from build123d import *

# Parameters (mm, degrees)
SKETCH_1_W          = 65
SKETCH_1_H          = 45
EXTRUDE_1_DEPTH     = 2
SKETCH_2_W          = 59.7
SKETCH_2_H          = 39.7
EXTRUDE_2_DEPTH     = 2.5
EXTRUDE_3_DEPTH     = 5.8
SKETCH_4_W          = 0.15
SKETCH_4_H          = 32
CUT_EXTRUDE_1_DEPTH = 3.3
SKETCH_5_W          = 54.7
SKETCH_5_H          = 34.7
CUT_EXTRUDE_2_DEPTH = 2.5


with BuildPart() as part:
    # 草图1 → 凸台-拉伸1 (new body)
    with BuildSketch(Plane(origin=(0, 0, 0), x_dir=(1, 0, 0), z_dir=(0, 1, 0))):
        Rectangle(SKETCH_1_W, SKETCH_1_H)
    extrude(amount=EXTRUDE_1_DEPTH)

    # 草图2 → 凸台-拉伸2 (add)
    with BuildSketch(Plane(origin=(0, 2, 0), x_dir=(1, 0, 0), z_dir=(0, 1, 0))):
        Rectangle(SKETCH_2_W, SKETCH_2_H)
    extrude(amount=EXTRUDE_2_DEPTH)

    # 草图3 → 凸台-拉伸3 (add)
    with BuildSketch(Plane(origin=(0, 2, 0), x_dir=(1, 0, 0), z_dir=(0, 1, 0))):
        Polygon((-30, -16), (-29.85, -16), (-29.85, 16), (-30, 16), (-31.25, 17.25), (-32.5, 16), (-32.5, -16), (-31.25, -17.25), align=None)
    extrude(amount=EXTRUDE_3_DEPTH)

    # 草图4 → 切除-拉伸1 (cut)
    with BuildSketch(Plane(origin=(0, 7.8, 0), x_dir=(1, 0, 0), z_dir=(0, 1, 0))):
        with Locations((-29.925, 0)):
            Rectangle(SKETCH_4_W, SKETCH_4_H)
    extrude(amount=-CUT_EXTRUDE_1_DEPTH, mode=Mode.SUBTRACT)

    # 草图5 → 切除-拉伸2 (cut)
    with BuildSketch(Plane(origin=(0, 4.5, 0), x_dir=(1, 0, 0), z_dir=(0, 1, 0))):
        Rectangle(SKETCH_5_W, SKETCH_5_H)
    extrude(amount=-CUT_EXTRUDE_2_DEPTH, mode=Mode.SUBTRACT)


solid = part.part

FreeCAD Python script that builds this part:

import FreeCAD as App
import Part
import Sketcher


def add_polygon(sketch, points):
    """Adds a closed chain of lines whose ends are joined by coincident constraints."""
    first, n = sketch.GeometryCount, len(points)
    for a, b in zip(points, points[1:] + points[:1]):
        sketch.addGeometry(Part.LineSegment(App.Vector(*a, 0), App.Vector(*b, 0)), False)
    for i in range(n):
        sketch.addConstraint(Sketcher.Constraint("Coincident", first + i, 2, first + (i + 1) % n, 1))

doc = App.newDocument("Part")
params = doc.addObject("Spreadsheet::Sheet", "Params")
for row, (alias, value) in enumerate([
    ("sketch1_width", "65 mm"),
    ("sketch1_height", "45 mm"),
    ("pad1_length", "2 mm"),
    ("sketch2_width", "59.7 mm"),
    ("sketch2_height", "39.7 mm"),
    ("pad2_length", "2.5 mm"),
    ("sketch3_height", "32 mm"),
    ("sketch3_width", "0.15 mm"),
    ("pad3_length", "5.8 mm"),
    ("sketch4_height", "32 mm"),
    ("sketch4_width", "0.15 mm"),
    ("pocket1_length", "3.3 mm"),
    ("sketch5_width", "54.7 mm"),
    ("sketch5_height", "34.7 mm"),
    ("pocket2_length", "2.5 mm"),
], start=1):
    params.set(f"A{row}", alias)
    params.set(f"B{row}", "=" + value)
    params.setAlias(f"B{row}", alias)

body = doc.addObject("PartDesign::Body", "Body")

# Sketch on XZ plane
sketch1 = body.newObject("Sketcher::SketchObject", "Sketch")
sketch1.AttachmentSupport = (doc.getObject("XZ_Plane"), [""])
sketch1.MapMode = "FlatFace"
add_polygon(sketch1, [(-32, -22), (-32, 22), (32, 22), (32, -22)])  # lines 0-3
sketch1.addConstraint([
    Sketcher.Constraint("Vertical", 0),
    Sketcher.Constraint("Horizontal", 1),
    Sketcher.Constraint("Vertical", 2),
    Sketcher.Constraint("Horizontal", 3),
    Sketcher.Constraint("Symmetric", 0, 2, 2, 2, -1, 1),
    Sketcher.Constraint("DistanceX", 1, 1, 1, 2, 65.0),
    Sketcher.Constraint("DistanceY", 0, 1, 0, 2, 45.0),
])
sketch1.setExpression("Constraints[9]", "Params.sketch1_width")
sketch1.setExpression("Constraints[10]", "Params.sketch1_height")
pad1 = body.newObject("PartDesign::Pad", "Pad")
pad1.Profile = sketch1
pad1.setExpression("Length", "Params.pad1_length")
pad1.Reversed = True

# Sketch on XZ plane
sketch2 = body.newObject("Sketcher::SketchObject", "Sketch001")
sketch2.AttachmentSupport = (doc.getObject("XZ_Plane"), [""])
sketch2.MapMode = "FlatFace"
sketch2.AttachmentOffset = App.Placement(App.Vector(0, 0, -2), App.Rotation())
add_polygon(sketch2, [(-30, -20), (-30, 20), (30, 20), (30, -20)])  # lines 0-3
sketch2.addConstraint([
    Sketcher.Constraint("Vertical", 0),
    Sketcher.Constraint("Horizontal", 1),
    Sketcher.Constraint("Vertical", 2),
    Sketcher.Constraint("Horizontal", 3),
    Sketcher.Constraint("Symmetric", 0, 2, 2, 2, -1, 1),
    Sketcher.Constraint("DistanceX", 1, 1, 1, 2, 59.7),
    Sketcher.Constraint("DistanceY", 0, 1, 0, 2, 39.7),
])
sketch2.setExpression("Constraints[9]", "Params.sketch2_width")
sketch2.setExpression("Constraints[10]", "Params.sketch2_height")
pad2 = body.newObject("PartDesign::Pad", "Pad001")
pad2.Profile = sketch2
pad2.setExpression("Length", "Params.pad2_length")
pad2.Reversed = True

# Sketch on XZ plane
sketch3 = body.newObject("Sketcher::SketchObject", "Sketch002")
sketch3.AttachmentSupport = (doc.getObject("XZ_Plane"), [""])
sketch3.MapMode = "FlatFace"
sketch3.AttachmentOffset = App.Placement(App.Vector(0, 0, -2), App.Rotation())
add_polygon(sketch3, [(-30, 16), (-29.85, 16), (-29.85, -16), (-30, -16), (-31.25, -17.25), (-32.5, -16), (-32.5, 16), (-31.25, 17.25)])  # lines 0-7
sketch3.addConstraint([
    Sketcher.Constraint("Horizontal", 0),
    Sketcher.Constraint("Vertical", 1),
    Sketcher.Constraint("Horizontal", 2),
    Sketcher.Constraint("Vertical", 5),
    Sketcher.Constraint("Symmetric", 3, 2, 6, 2, -1),
    Sketcher.Constraint("Symmetric", 2, 2, 7, 2, -1),
    Sketcher.Constraint("Perpendicular", 3, 4),
    Sketcher.Constraint("Perpendicular", 4, 6),
    Sketcher.Constraint("Perpendicular", 6, 7),
    Sketcher.Constraint("Horizontal", 2, 2, 4, 2),
    Sketcher.Constraint("DistanceY", 1, 2, 1, 1, 32.0),
    Sketcher.Constraint("DistanceX", 2, 2, -1, 1, 30.0),
    Sketcher.Constraint("DistanceX", 0, 1, 0, 2, 0.15),
    Sketcher.Constraint("DistanceX", 4, 2, -1, 1, 32.5),
])
sketch3.setExpression("Constraints[18]", "Params.sketch3_height")
sketch3.setExpression("Constraints[20]", "Params.sketch3_width")
pad3 = body.newObject("PartDesign::Pad", "Pad002")
pad3.Profile = sketch3
pad3.setExpression("Length", "Params.pad3_length")
pad3.Reversed = True

# Sketch on XZ plane
sketch4 = body.newObject("Sketcher::SketchObject", "Sketch003")
sketch4.AttachmentSupport = (doc.getObject("XZ_Plane"), [""])
sketch4.MapMode = "FlatFace"
sketch4.AttachmentOffset = App.Placement(App.Vector(0, 0, -7.8), App.Rotation())
add_polygon(sketch4, [(-30, -16), (-30, 16), (-29.85, 16), (-29.85, -16)])  # lines 0-3
sketch4.addConstraint([
    Sketcher.Constraint("Vertical", 0),
    Sketcher.Constraint("Horizontal", 1),
    Sketcher.Constraint("Vertical", 2),
    Sketcher.Constraint("Horizontal", 3),
    Sketcher.Constraint("DistanceY", 0, 1, 0, 2, 32.0),
    Sketcher.Constraint("DistanceX", 0, 2, -1, 1, 30.0),
    Sketcher.Constraint("DistanceY", -1, 1, 0, 2, 16.0),
    Sketcher.Constraint("DistanceX", 1, 1, 1, 2, 0.15),
])
sketch4.setExpression("Constraints[8]", "Params.sketch4_height")
sketch4.setExpression("Constraints[11]", "Params.sketch4_width")
pocket1 = body.newObject("PartDesign::Pocket", "Pocket")
pocket1.Profile = sketch4
pocket1.setExpression("Length", "Params.pocket1_length")
pocket1.Reversed = True

# Sketch on XZ plane
sketch5 = body.newObject("Sketcher::SketchObject", "Sketch004")
sketch5.AttachmentSupport = (doc.getObject("XZ_Plane"), [""])
sketch5.MapMode = "FlatFace"
sketch5.AttachmentOffset = App.Placement(App.Vector(0, 0, -4.5), App.Rotation())
add_polygon(sketch5, [(-27, -17), (-27, 17), (27, 17), (27, -17)])  # lines 0-3
sketch5.addConstraint([
    Sketcher.Constraint("Vertical", 0),
    Sketcher.Constraint("Horizontal", 1),
    Sketcher.Constraint("Vertical", 2),
    Sketcher.Constraint("Horizontal", 3),
    Sketcher.Constraint("Symmetric", 0, 2, 2, 2, -1, 1),
    Sketcher.Constraint("DistanceX", 1, 1, 1, 2, 54.7),
    Sketcher.Constraint("DistanceY", 0, 1, 0, 2, 34.7),
])
sketch5.setExpression("Constraints[9]", "Params.sketch5_width")
sketch5.setExpression("Constraints[10]", "Params.sketch5_height")
pocket2 = body.newObject("PartDesign::Pocket", "Pocket001")
pocket2.Profile = sketch5
pocket2.setExpression("Length", "Params.pocket2_length")
pocket2.Reversed = True

doc.recompute()
